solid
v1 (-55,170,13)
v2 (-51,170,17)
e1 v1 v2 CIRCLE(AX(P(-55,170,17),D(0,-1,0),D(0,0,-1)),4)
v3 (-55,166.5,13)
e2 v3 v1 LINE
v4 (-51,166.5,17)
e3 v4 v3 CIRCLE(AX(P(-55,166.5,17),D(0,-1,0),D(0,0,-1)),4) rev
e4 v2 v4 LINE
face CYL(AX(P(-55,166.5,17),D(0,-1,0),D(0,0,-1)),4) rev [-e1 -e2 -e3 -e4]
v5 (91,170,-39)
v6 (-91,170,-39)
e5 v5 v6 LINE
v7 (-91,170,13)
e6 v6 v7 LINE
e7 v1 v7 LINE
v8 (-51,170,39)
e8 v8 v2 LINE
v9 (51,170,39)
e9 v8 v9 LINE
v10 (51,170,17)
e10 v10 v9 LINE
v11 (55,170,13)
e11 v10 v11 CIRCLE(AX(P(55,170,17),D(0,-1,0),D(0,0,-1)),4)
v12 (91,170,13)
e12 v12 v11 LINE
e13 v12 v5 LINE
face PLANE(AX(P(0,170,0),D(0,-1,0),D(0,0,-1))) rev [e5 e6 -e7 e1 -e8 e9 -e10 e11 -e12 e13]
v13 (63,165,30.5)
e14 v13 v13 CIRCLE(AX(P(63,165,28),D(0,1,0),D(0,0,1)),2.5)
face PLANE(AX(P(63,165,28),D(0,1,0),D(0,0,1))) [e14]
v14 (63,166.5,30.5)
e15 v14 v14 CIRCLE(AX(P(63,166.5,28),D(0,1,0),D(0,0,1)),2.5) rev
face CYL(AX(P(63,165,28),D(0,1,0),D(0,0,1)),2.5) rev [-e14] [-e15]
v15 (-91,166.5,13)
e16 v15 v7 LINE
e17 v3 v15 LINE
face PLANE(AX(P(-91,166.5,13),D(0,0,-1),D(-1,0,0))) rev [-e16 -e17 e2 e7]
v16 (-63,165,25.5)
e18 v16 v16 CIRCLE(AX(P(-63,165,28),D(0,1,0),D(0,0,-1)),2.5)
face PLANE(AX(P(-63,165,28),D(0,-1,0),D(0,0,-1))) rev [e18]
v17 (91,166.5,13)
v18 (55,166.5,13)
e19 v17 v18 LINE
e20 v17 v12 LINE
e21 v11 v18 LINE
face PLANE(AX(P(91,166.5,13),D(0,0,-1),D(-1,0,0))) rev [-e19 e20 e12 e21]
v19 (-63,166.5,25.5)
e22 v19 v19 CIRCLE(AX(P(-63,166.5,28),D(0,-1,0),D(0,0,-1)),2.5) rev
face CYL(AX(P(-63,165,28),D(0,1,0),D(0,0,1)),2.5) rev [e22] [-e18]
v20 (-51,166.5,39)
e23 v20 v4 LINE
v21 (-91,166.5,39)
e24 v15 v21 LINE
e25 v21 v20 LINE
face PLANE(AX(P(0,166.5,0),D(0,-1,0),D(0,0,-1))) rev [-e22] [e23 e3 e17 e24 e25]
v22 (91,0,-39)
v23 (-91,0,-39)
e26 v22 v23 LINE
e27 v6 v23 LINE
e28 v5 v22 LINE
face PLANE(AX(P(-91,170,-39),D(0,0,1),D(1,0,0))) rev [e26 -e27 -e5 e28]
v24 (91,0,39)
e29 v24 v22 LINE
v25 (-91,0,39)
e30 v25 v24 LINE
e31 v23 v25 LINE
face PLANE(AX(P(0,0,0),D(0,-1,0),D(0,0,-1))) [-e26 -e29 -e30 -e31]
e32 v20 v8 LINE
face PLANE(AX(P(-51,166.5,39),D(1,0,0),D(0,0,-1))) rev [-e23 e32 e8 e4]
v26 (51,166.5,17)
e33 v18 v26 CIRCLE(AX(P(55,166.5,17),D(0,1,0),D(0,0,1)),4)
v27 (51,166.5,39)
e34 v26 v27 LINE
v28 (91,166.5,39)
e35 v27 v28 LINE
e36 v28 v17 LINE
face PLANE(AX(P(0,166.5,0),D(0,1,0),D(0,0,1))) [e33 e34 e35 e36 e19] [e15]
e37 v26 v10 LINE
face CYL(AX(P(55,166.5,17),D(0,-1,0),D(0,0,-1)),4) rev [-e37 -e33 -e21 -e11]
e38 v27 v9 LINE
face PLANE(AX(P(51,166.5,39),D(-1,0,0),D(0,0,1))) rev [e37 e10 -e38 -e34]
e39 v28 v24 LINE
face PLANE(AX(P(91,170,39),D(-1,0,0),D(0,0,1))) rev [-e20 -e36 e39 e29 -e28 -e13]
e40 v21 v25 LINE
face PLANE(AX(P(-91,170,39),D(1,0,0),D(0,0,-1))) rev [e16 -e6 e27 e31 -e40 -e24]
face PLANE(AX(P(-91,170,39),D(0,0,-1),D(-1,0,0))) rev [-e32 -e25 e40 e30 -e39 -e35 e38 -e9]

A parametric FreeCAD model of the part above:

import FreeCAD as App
import Part
import Sketcher
from FreeCAD import Vector


def edges_at(feature, points):
    """Names of the edges that pass closest to the given points."""
    edges = feature.Shape.Edges
    near = lambda p: min(range(len(edges)), key=lambda i: edges[i].distToShape(Part.Vertex(*p))[0])
    return sorted({f"Edge{near(p) + 1}" for p in points})


def add_polygon(sketch, points):
    """Adds a closed chain of lines whose ends are joined by coincident constraints."""
    first, n = sketch.GeometryCount, len(points)
    for a, b in zip(points, points[1:] + points[:1]):
        sketch.addGeometry(Part.LineSegment(App.Vector(*a, 0), App.Vector(*b, 0)), False)
    for i in range(n):
        sketch.addConstraint(Sketcher.Constraint("Coincident", first + i, 2, first + (i + 1) % n, 1))

doc = App.newDocument("Part")
params = doc.addObject("Spreadsheet::Sheet", "Params")
for row, (alias, value) in enumerate([
    ("sketch1_width", "182 mm"),
    ("sketch1_height", "78 mm"),
    ("pad1_length", "170 mm"),
    ("sketch2_diameter", "5 mm"),
    ("pocket1_length", "5 mm"),
    ("sketch3_width", "40 mm"),
    ("sketch3_height", "26 mm"),
    ("pocket2_length", "3.5 mm"),
    ("fillet_radius", "4 mm"),
], start=1):
    params.set(f"A{row}", alias)
    params.set(f"B{row}", "=" + value)
    params.setAlias(f"B{row}", alias)

body = doc.addObject("PartDesign::Body", "Body")

# Sketch on XZ plane
sketch1 = doc.addObject("Sketcher::SketchObject", "Sketch")
body.addObject(sketch1)
sketch1.AttachmentSupport = (doc.XZ_Plane, [""])
sketch1.MapMode = "FlatFace"
add_polygon(sketch1, [(-91, -39), (-91, 39), (91, 39), (91, -39)])  # lines 0-3
sketch1.addConstraint([
    Sketcher.Constraint("Vertical", 0),
    Sketcher.Constraint("Horizontal", 1),
    Sketcher.Constraint("Vertical", 2),
    Sketcher.Constraint("Horizontal", 3),
    Sketcher.Constraint("Symmetric", 0, 2, 2, 2, -1, 1),
    Sketcher.Constraint("DistanceX", 1, 1, 1, 2, 182.0),
    Sketcher.Constraint("DistanceY", 0, 1, 0, 2, 78.0),
])
sketch1.setExpression("Constraints[9]", "Params.sketch1_width")
sketch1.setExpression("Constraints[10]", "Params.sketch1_height")
pad1 = doc.addObject("PartDesign::Pad", "Pad")
body.addObject(pad1)
pad1.Profile = sketch1
pad1.setExpression("Length", "Params.pad1_length")
pad1.Reversed = True

# Sketch on XZ plane
sketch2 = doc.addObject("Sketcher::SketchObject", "Sketch001")
body.addObject(sketch2)
sketch2.AttachmentSupport = (doc.XZ_Plane, [""])
sketch2.MapMode = "FlatFace"
sketch2.AttachmentOffset = App.Placement(Vector(0, 0, -170), App.Rotation())
sketch2.addGeometry([
    Part.Circle(Vector(63, 28, 0), Vector(0, 0, 1), 2.5),
    Part.Circle(Vector(-63, 28, 0), Vector(0, 0, 1), 2.5),
], False)
sketch2.addConstraint([
    Sketcher.Constraint("Equal", 0, 1),
    Sketcher.Constraint("Symmetric", 0, 3, 1, 3, -2),
    Sketcher.Constraint("Diameter", 0, 5.0),
    Sketcher.Constraint("DistanceX", -1, 1, 0, 3, 63.0),
    Sketcher.Constraint("DistanceY", -1, 1, 0, 3, 28.0),
])
sketch2.setExpression("Constraints[2]", "Params.sketch2_diameter")
pocket1 = doc.addObject("PartDesign::Pocket", "Pocket")
body.addObject(pocket1)
pocket1.Profile = sketch2
pocket1.setExpression("Length", "Params.pocket1_length")
pocket1.Reversed = True

# Sketch on XZ plane
sketch3 = doc.addObject("Sketcher::SketchObject", "Sketch002")
body.addObject(sketch3)
sketch3.AttachmentSupport = (doc.XZ_Plane, [""])
sketch3.MapMode = "FlatFace"
sketch3.AttachmentOffset = App.Placement(Vector(0, 0, -170), App.Rotation())
add_polygon(sketch3, [(-91, 13), (-91, 39), (-51, 39), (-51, 13)])  # lines 0-3
add_polygon(sketch3, [(51, 13), (51, 39), (91, 39), (91, 13)])  # lines 4-7
sketch3.addConstraint([
    Sketcher.Constraint("Vertical", 0),
    Sketcher.Constraint("Horizontal", 1),
    Sketcher.Constraint("Vertical", 2),
    Sketcher.Constraint("Horizontal", 3),
    Sketcher.Constraint("Vertical", 4),
    Sketcher.Constraint("Horizontal", 5),
    Sketcher.Constraint("Vertical", 6),
    Sketcher.Constraint("Horizontal", 7),
    Sketcher.Constraint("Symmetric", 1, 2, 4, 2, -2),
    Sketcher.Constraint("Symmetric", 3, 2, 6, 2, -2),
    Sketcher.Constraint("DistanceX", 1, 1, 1, 2, 40.0),
    Sketcher.Constraint("DistanceY", 0, 1, 0, 2, 26.0),
    Sketcher.Constraint("DistanceX", 0, 2, -1, 1, 91.0),
    Sketcher.Constraint("DistanceY", -1, 1, 0, 2, 39.0),
])
sketch3.setExpression("Constraints[18]", "Params.sketch3_width")
sketch3.setExpression("Constraints[19]", "Params.sketch3_height")
pocket2 = doc.addObject("PartDesign::Pocket", "Pocket001")
body.addObject(pocket2)
pocket2.Profile = sketch3
pocket2.setExpression("Length", "Params.pocket2_length")
pocket2.Reversed = True
doc.recompute()

fillet = doc.addObject("PartDesign::Fillet", "Fillet")
body.addObject(fillet)
fillet.Base = (pocket2, edges_at(pocket2, [(-51, 168.25, 13), (51, 168.25, 13)]))
fillet.setExpression("Radius", "Params.fillet_radius")

doc.recompute()
